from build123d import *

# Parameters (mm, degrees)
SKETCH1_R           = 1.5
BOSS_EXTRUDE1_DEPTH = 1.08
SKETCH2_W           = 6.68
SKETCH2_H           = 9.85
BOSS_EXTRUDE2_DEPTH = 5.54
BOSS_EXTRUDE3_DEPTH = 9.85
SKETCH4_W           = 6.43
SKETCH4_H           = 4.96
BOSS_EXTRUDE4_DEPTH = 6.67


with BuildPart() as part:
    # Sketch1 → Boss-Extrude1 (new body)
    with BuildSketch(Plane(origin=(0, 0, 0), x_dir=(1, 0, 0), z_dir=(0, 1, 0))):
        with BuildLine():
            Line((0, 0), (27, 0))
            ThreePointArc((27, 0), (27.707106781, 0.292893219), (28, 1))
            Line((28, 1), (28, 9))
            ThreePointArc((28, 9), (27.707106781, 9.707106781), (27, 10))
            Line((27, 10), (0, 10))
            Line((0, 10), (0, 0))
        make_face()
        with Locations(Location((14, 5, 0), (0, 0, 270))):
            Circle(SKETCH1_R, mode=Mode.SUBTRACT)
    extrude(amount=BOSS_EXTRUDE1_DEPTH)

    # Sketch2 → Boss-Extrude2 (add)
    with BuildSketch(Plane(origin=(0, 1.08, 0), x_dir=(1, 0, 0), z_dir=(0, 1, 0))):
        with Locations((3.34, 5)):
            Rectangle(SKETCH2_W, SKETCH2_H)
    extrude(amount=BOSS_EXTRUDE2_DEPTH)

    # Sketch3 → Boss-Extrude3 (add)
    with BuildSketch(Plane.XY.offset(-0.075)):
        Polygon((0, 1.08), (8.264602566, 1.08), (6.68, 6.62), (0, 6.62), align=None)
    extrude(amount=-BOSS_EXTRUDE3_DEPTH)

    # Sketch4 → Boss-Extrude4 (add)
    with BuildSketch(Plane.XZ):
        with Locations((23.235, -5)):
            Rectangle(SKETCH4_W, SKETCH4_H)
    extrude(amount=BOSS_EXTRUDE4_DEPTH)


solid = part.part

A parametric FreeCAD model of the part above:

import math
import FreeCAD as App
import Part
import Sketcher
from FreeCAD import Vector
Q = App.Units.Quantity

doc = App.newDocument("Part")
body = doc.addObject("PartDesign::Body", "Body")

# Sketch on XZ plane
sketch1 = doc.addObject("Sketcher::SketchObject", "Sketch")
body.addObject(sketch1)
sketch1.AttachmentSupport = (doc.XZ_Plane, [""])
sketch1.MapMode = "FlatFace"
sketch1.addGeometry([
    Part.LineSegment(Vector(0, 0, 0), Vector(27, 0, 0)),  # 0
    Part.ArcOfCircle(Part.Circle(Vector(27, -1, 0), Vector(0, 0, 1), 1), math.radians(0), math.radians(90)),  # 1
    Part.LineSegment(Vector(28, -1, 0), Vector(28, -9, 0)),  # 2
    Part.ArcOfCircle(Part.Circle(Vector(27, -9, 0), Vector(0, 0, 1), 1), math.radians(-90), math.radians(0)),  # 3
    Part.LineSegment(Vector(27, -10, 0), Vector(0, -10, 0)),  # 4
    Part.LineSegment(Vector(0, -10, 0), Vector(0, 0, 0)),  # 5
    Part.Circle(Vector(14, -5, 0), Vector(0, 0, 1), 1.5),  # 6
], False)
sketch1.addConstraint([
    Sketcher.Constraint("Tangent", 0, 2, 1, 2),
    Sketcher.Constraint("Tangent", 1, 1, 2, 1),
    Sketcher.Constraint("Tangent", 2, 2, 3, 2),
    Sketcher.Constraint("Tangent", 3, 1, 4, 1),
    Sketcher.Constraint("Coincident", 4, 2, 5, 1),
    Sketcher.Constraint("Coincident", 5, 2, 0, 1),
    Sketcher.Constraint("Horizontal", 0),
    Sketcher.Constraint("Vertical", 2),
    Sketcher.Constraint("Horizontal", 4),
    Sketcher.Constraint("Vertical", 5),
    Sketcher.Constraint("Coincident", 5, 2, -1, 1),
    Sketcher.Constraint("Equal", 1, 3),
    Sketcher.Constraint("Diameter", 6, Q("3 mm")),
    Sketcher.Constraint("Radius", 1, Q("1 mm")),
    Sketcher.Constraint("DistanceX", 0, 1, 0, 2, Q("27 mm")),
    Sketcher.Constraint("DistanceY", 2, 2, 2, 1, Q("8 mm")),
    Sketcher.Constraint("DistanceX", -1, 1, 6, 3, Q("14 mm")),
    Sketcher.Constraint("DistanceY", 6, 3, -1, 1, Q("5 mm")),
])
pad1 = doc.addObject("PartDesign::Pad", "Pad")
body.addObject(pad1)
pad1.Profile = sketch1
pad1.Length = 1.08
pad1.Reversed = True

# Sketch on XZ plane
sketch2 = doc.addObject("Sketcher::SketchObject", "Sketch001")
body.addObject(sketch2)
sketch2.AttachmentSupport = (doc.XZ_Plane, [""])
sketch2.MapMode = "FlatFace"
sketch2.AttachmentOffset = App.Placement(Vector(0, 0, -1.08), App.Rotation())
sketch2.addGeometry([
    Part.LineSegment(Vector(0, -10, 0), Vector(0, 0, 0)),
    Part.LineSegment(Vector(0, 0, 0), Vector(7, 0, 0)),
    Part.LineSegment(Vector(7, 0, 0), Vector(7, -10, 0)),
    Part.LineSegment(Vector(7, -10, 0), Vector(0, -10, 0)),
], False)
sketch2.addConstraint([
    Sketcher.Constraint("Coincident", 0, 2, 1, 1),
    Sketcher.Constraint("Coincident", 1, 2, 2, 1),
    Sketcher.Constraint("Coincident", 2, 2, 3, 1),
    Sketcher.Constraint("Coincident", 3, 2, 0, 1),
    Sketcher.Constraint("Vertical", 0),
    Sketcher.Constraint("Horizontal", 1),
    Sketcher.Constraint("Vertical", 2),
    Sketcher.Constraint("Horizontal", 3),
    Sketcher.Constraint("PointOnObject", 0, 2, -2),
    Sketcher.Constraint("DistanceX", 1, 1, 1, 2, Q("6.68 mm")),
    Sketcher.Constraint("DistanceY", 0, 1, 0, 2, Q("9.85 mm")),
    Sketcher.Constraint("DistanceY", 0, 2, -1, 1, Q("0.075 mm")),
])
pad2 = doc.addObject("PartDesign::Pad", "Pad001")
body.addObject(pad2)
pad2.Profile = sketch2
pad2.Length = 5.54
pad2.Reversed = True

# Sketch on XY plane
sketch3 = doc.addObject("Sketcher::SketchObject", "Sketch002")
body.addObject(sketch3)
sketch3.AttachmentSupport = (doc.XY_Plane, [""])
sketch3.MapMode = "FlatFace"
sketch3.AttachmentOffset = App.Placement(Vector(0, 0, -0.075), App.Rotation())
sketch3.addGeometry([
    Part.LineSegment(Vector(0, 1, 0), Vector(8, 1, 0)),
    Part.LineSegment(Vector(8, 1, 0), Vector(7, 7, 0)),
    Part.LineSegment(Vector(7, 7, 0), Vector(0, 7, 0)),
    Part.LineSegment(Vector(0, 7, 0), Vector(0, 1, 0)),
], False)
sketch3.addConstraint([
    Sketcher.Constraint("Coincident", 0, 2, 1, 1),
    Sketcher.Constraint("Coincident", 1, 2, 2, 1),
    Sketcher.Constraint("Coincident", 2, 2, 3, 1),
    Sketcher.Constraint("Coincident", 3, 2, 0, 1),
    Sketcher.Constraint("Horizontal", 0),
    Sketcher.Constraint("Horizontal", 2),
    Sketcher.Constraint("Vertical", 3),
    Sketcher.Constraint("PointOnObject", 2, 2, -2),
    Sketcher.Constraint("DistanceX", 2, 2, 2, 1, Q("6.68 mm")),
    Sketcher.Constraint("DistanceY", 3, 2, 3, 1, Q("5.54 mm")),
    Sketcher.Constraint("DistanceY", -1, 1, 0, 2, Q("1.08 mm")),
    Sketcher.Constraint("DistanceX", 0, 1, 0, 2, Q("8.264603 mm")),
])
pad3 = doc.addObject("PartDesign::Pad", "Pad002")
body.addObject(pad3)
pad3.Profile = sketch3
pad3.Length = 9.85
pad3.Reversed = True

# Sketch on XZ plane
sketch4 = doc.addObject("Sketcher::SketchObject", "Sketch003")
body.addObject(sketch4)
sketch4.AttachmentSupport = (doc.XZ_Plane, [""])
sketch4.MapMode = "FlatFace"
sketch4.addGeometry([
    Part.LineSegment(Vector(20, -2.5, 0), Vector(20, -7.5, 0)),
    Part.LineSegment(Vector(20, -7.5, 0), Vector(26.4, -7.5, 0)),
    Part.LineSegment(Vector(26.4, -7.5, 0), Vector(26.4, -2.5, 0)),
    Part.LineSegment(Vector(26.4, -2.5, 0), Vector(20, -2.5, 0)),
], False)
sketch4.addConstraint([
    Sketcher.Constraint("Coincident", 0, 2, 1, 1),
    Sketcher.Constraint("Coincident", 1, 2, 2, 1),
    Sketcher.Constraint("Coincident", 2, 2, 3, 1),
    Sketcher.Constraint("Coincident", 3, 2, 0, 1),
    Sketcher.Constraint("Vertical", 0),
    Sketcher.Constraint("Horizontal", 1),
    Sketcher.Constraint("Vertical", 2),
    Sketcher.Constraint("Horizontal", 3),
    Sketcher.Constraint("DistanceX", 1, 1, 1, 2, Q("6.43 mm")),
    Sketcher.Constraint("DistanceY", 0, 2, 0, 1, Q("4.96 mm")),
    Sketcher.Constraint("DistanceX", -1, 1, 0, 2, Q("20.02 mm")),
    Sketcher.Constraint("DistanceY", 0, 2, -1, 1, Q("7.48 mm")),
])
pad4 = doc.addObject("PartDesign::Pad", "Pad003")
body.addObject(pad4)
pad4.Profile = sketch4
pad4.Length = 6.67

doc.recompute()
